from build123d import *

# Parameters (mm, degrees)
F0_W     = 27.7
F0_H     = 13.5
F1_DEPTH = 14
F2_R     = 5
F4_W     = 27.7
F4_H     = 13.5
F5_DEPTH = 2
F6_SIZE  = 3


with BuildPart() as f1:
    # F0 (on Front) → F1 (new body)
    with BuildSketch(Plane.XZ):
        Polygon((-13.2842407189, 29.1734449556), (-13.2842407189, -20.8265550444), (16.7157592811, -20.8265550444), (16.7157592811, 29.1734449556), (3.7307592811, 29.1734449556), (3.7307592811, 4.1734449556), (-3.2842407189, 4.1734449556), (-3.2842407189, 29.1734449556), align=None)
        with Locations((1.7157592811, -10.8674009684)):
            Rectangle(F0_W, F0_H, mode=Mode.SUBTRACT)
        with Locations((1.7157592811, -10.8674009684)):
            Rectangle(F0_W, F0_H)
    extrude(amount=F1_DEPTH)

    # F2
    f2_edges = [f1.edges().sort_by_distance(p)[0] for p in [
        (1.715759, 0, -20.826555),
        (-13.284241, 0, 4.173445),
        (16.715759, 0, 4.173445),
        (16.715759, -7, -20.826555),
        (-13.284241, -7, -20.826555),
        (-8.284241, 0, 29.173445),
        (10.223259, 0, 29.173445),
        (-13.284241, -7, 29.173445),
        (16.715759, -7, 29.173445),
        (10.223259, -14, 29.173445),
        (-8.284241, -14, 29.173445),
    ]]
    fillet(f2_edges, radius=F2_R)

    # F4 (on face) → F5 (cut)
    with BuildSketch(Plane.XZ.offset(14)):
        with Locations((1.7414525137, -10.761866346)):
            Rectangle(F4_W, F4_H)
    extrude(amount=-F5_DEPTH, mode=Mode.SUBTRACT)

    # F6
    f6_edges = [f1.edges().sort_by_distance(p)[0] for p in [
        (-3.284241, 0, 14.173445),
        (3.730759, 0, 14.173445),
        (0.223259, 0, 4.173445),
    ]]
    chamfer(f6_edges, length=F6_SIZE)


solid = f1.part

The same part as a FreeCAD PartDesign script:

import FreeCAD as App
import Part
import Sketcher
Q = App.Units.Quantity


def edges_at(feature, points):
    """Names of the edges that pass closest to the given points."""
    edges = feature.Shape.Edges
    near = lambda p: min(range(len(edges)), key=lambda i: edges[i].distToShape(Part.Vertex(*p))[0])
    return sorted({f"Edge{near(p) + 1}" for p in points})


def add_polygon(sketch, points):
    """Adds a closed chain of lines whose ends are joined by coincident constraints."""
    first, n = sketch.GeometryCount, len(points)
    for a, b in zip(points, points[1:] + points[:1]):
        sketch.addGeometry(Part.LineSegment(App.Vector(*a, 0), App.Vector(*b, 0)), False)
    for i in range(n):
        sketch.addConstraint(Sketcher.Constraint("Coincident", first + i, 2, first + (i + 1) % n, 1))

doc = App.newDocument("Part")
body = doc.addObject("PartDesign::Body", "Body")

sketch1 = doc.addObject("Sketcher::SketchObject", "Sketch")
body.addObject(sketch1)
sketch1.AttachmentSupport = (doc.XZ_Plane, [""])
sketch1.MapMode = "FlatFace"
add_polygon(sketch1, [(-13.284241, 29.173445), (-13.284241, -20.826555), (16.715759, -20.826555), (16.715759, 29.173445), (3.730759, 29.173445), (3.730759, 4.173445), (-3.284241, 4.173445), (-3.284241, 29.173445)])
sketch1.addConstraint([
    Sketcher.Constraint("Vertical", 0),
    Sketcher.Constraint("Horizontal", 1),
    Sketcher.Constraint("Vertical", 2),
    Sketcher.Constraint("Horizontal", 3),
    Sketcher.Constraint("Vertical", 4),
    Sketcher.Constraint("Horizontal", 5),
    Sketcher.Constraint("Vertical", 6),
    Sketcher.Constraint("Horizontal", 7),
    Sketcher.Constraint("Horizontal", 3, 2, 6, 2),
    Sketcher.Constraint("DistanceX", 1, 1, 1, 2, Q("30 mm")),
    Sketcher.Constraint("DistanceX", 7, 2, 7, 1, Q("10 mm")),
    Sketcher.Constraint("DistanceY", 0, 2, 0, 1, Q("50 mm")),
    Sketcher.Constraint("DistanceY", 4, 2, 4, 1, Q("25 mm")),
    Sketcher.Constraint("DistanceX", 3, 2, 3, 1, Q("12.985 mm")),
    Sketcher.Constraint("DistanceX", 0, 2, -1, 1, Q("13.284241 mm")),
    Sketcher.Constraint("DistanceY", 0, 2, -1, 1, Q("20.826555 mm")),
])
pad1 = doc.addObject("PartDesign::Pad", "Pad")
body.addObject(pad1)
pad1.Profile = sketch1
pad1.Length = 14
doc.recompute()

fillet = doc.addObject("PartDesign::Fillet", "Fillet")
body.addObject(fillet)
fillet.Base = (pad1, edges_at(pad1, [
    (1.716, 0, -20.827),
    (-13.284, 0, 4.173),
    (16.716, 0, 4.173),
    (16.716, -7, -20.827),
    (-13.284, -7, -20.827),
    (-8.284, 0, 29.173),
    (10.223, 0, 29.173),
    (-13.284, -7, 29.173),
    (16.716, -7, 29.173),
    (10.223, -14, 29.173),
    (-8.284, -14, 29.173),
]))
fillet.Radius = 5

sketch2 = doc.addObject("Sketcher::SketchObject", "Sketch001")
body.addObject(sketch2)
sketch2.AttachmentSupport = (doc.XZ_Plane, [""])
sketch2.MapMode = "FlatFace"
sketch2.AttachmentOffset = App.Placement(App.Vector(0, 0, 14), App.Rotation())
add_polygon(sketch2, [(-12.108547, -4.011866), (-12.108547, -17.511866), (15.591453, -17.511866), (15.591453, -4.011866)])
sketch2.addConstraint([
    Sketcher.Constraint("Vertical", 0),
    Sketcher.Constraint("Horizontal", 1),
    Sketcher.Constraint("Vertical", 2),
    Sketcher.Constraint("Horizontal", 3),
    Sketcher.Constraint("DistanceX", 1, 1, 1, 2, Q("27.7 mm")),
    Sketcher.Constraint("DistanceY", 0, 2, 0, 1, Q("13.5 mm")),
    Sketcher.Constraint("DistanceX", 0, 2, -1, 1, Q("12.108547 mm")),
    Sketcher.Constraint("DistanceY", 0, 2, -1, 1, Q("17.511866 mm")),
])
pocket1 = doc.addObject("PartDesign::Pocket", "Pocket")
body.addObject(pocket1)
pocket1.Profile = sketch2
pocket1.Length = 2
doc.recompute()

chamfer = doc.addObject("PartDesign::Chamfer", "Chamfer")
body.addObject(chamfer)
chamfer.Base = (pocket1, edges_at(pocket1, [(-3.284, 0, 14.173), (3.731, 0, 14.173), (0.223, 0, 4.173)]))
chamfer.Size = 3

doc.recompute()
